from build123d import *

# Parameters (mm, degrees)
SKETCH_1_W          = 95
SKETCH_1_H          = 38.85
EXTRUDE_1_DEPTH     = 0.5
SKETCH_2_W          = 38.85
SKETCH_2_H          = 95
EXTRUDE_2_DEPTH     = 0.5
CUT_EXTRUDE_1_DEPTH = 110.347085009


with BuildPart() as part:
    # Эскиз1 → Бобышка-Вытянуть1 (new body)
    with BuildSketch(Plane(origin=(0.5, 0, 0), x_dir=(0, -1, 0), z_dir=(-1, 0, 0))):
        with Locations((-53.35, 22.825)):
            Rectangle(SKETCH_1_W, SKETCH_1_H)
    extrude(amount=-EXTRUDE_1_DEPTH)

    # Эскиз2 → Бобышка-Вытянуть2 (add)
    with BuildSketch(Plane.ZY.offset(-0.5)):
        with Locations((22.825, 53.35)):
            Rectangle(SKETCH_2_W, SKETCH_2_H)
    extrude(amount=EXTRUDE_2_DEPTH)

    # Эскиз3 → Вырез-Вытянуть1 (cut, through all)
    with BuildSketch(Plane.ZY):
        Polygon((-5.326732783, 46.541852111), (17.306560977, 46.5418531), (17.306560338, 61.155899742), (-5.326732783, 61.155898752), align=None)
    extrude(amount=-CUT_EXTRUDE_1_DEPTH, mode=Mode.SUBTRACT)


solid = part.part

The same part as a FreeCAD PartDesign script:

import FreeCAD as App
import Part
import Sketcher

V = App.Vector

doc = App.newDocument("Part")
body = doc.addObject("PartDesign::Body", "Body")

sketch1 = body.newObject("Sketcher::SketchObject", "Sketch")
sketch1.AttachmentSupport = (doc.getObject("YZ_Plane"), [""])
sketch1.MapMode = "FlatFace"
sketch1.AttachmentOffset = App.Placement(V(0, 0, 0.5), App.Rotation())
sketch1.addGeometry([
    Part.LineSegment(V(100.85, 42.25, 0), V(100.85, 3.4, 0)),
    Part.LineSegment(V(100.85, 3.4, 0), V(5.85, 3.4, 0)),
    Part.LineSegment(V(5.85, 3.4, 0), V(5.85, 42.25, 0)),
    Part.LineSegment(V(5.85, 42.25, 0), V(100.85, 42.25, 0)),
], False)
sketch1.addConstraint([
    Sketcher.Constraint("Coincident", 0, 2, 1, 1),
    Sketcher.Constraint("Coincident", 1, 2, 2, 1),
    Sketcher.Constraint("Coincident", 2, 2, 3, 1),
    Sketcher.Constraint("Coincident", 3, 2, 0, 1),
    Sketcher.Constraint("Vertical", 0),
    Sketcher.Constraint("Horizontal", 1),
    Sketcher.Constraint("Vertical", 2),
    Sketcher.Constraint("Horizontal", 3),
    Sketcher.Constraint("DistanceX", 1, 2, 1, 1, 95.0),
    Sketcher.Constraint("DistanceY", 0, 2, 0, 1, 38.85),
    Sketcher.Constraint("DistanceY", -1, 1, 0, 2, 3.4),
    Sketcher.Constraint("DistanceX", -1, 1, 0, 2, 100.85),
])
pad1 = body.newObject("PartDesign::Pad", "Pad")
pad1.Profile = sketch1
pad1.Length = 0.5

sketch2 = body.newObject("Sketcher::SketchObject", "Sketch001")
sketch2.AttachmentSupport = (doc.getObject("YZ_Plane"), [""])
sketch2.MapMode = "FlatFace"
sketch2.AttachmentOffset = App.Placement(V(0, 0, 0.5), App.Rotation())
sketch2.addGeometry([
    Part.LineSegment(V(100.85, 3.4, 0), V(5.85, 3.4, 0)),
    Part.LineSegment(V(5.85, 3.4, 0), V(5.85, 42.25, 0)),
    Part.LineSegment(V(5.85, 42.25, 0), V(100.85, 42.25, 0)),
    Part.LineSegment(V(100.85, 42.25, 0), V(100.85, 3.4, 0)),
], False)
sketch2.addConstraint([
    Sketcher.Constraint("Coincident", 0, 2, 1, 1),
    Sketcher.Constraint("Coincident", 1, 2, 2, 1),
    Sketcher.Constraint("Coincident", 2, 2, 3, 1),
    Sketcher.Constraint("Coincident", 3, 2, 0, 1),
    Sketcher.Constraint("Horizontal", 0),
    Sketcher.Constraint("Vertical", 1),
    Sketcher.Constraint("Horizontal", 2),
    Sketcher.Constraint("Vertical", 3),
    Sketcher.Constraint("DistanceX", 0, 2, 0, 1, 95.0),
    Sketcher.Constraint("DistanceY", 1, 1, 1, 2, 38.85),
    Sketcher.Constraint("DistanceY", -1, 1, 0, 2, 3.4),
    Sketcher.Constraint("DistanceX", -1, 1, 0, 2, 5.85),
])
pad2 = body.newObject("PartDesign::Pad", "Pad001")
pad2.Profile = sketch2
pad2.Length = 0.5
pad2.Reversed = True

sketch3 = body.newObject("Sketcher::SketchObject", "Sketch002")
sketch3.AttachmentSupport = (doc.getObject("YZ_Plane"), [""])
sketch3.MapMode = "FlatFace"
sketch3.addGeometry([
    Part.LineSegment(V(46.541852, -5.326733, 0), V(46.541853, 17.306561, 0)),
    Part.LineSegment(V(46.541853, 17.306561, 0), V(61.1559, 17.30656, 0)),
    Part.LineSegment(V(61.1559, 17.30656, 0), V(61.155899, -5.326733, 0)),
    Part.LineSegment(V(61.155899, -5.326733, 0), V(46.541852, -5.326733, 0)),
], False)
sketch3.addConstraint([
    Sketcher.Constraint("Coincident", 0, 2, 1, 1),
    Sketcher.Constraint("Coincident", 1, 2, 2, 1),
    Sketcher.Constraint("Coincident", 2, 2, 3, 1),
    Sketcher.Constraint("Coincident", 3, 2, 0, 1),
    Sketcher.Constraint("Vertical", 0),
    Sketcher.Constraint("Horizontal", 1),
    Sketcher.Constraint("Vertical", 2),
    Sketcher.Constraint("Horizontal", 3),
    Sketcher.Constraint("DistanceX", -1, 1, 1, 2, 61.1559),
    Sketcher.Constraint("DistanceX", 1, 1, 1, 2, 14.614047),
    Sketcher.Constraint("DistanceY", 0, 1, 0, 2, 22.633294),
    Sketcher.Constraint("DistanceY", -1, 1, 0, 2, 17.306561),
])
pocket1 = body.newObject("PartDesign::Pocket", "Pocket")
pocket1.Profile = sketch3
pocket1.Type = "ThroughAll"
pocket1.Reversed = True

doc.recompute()
